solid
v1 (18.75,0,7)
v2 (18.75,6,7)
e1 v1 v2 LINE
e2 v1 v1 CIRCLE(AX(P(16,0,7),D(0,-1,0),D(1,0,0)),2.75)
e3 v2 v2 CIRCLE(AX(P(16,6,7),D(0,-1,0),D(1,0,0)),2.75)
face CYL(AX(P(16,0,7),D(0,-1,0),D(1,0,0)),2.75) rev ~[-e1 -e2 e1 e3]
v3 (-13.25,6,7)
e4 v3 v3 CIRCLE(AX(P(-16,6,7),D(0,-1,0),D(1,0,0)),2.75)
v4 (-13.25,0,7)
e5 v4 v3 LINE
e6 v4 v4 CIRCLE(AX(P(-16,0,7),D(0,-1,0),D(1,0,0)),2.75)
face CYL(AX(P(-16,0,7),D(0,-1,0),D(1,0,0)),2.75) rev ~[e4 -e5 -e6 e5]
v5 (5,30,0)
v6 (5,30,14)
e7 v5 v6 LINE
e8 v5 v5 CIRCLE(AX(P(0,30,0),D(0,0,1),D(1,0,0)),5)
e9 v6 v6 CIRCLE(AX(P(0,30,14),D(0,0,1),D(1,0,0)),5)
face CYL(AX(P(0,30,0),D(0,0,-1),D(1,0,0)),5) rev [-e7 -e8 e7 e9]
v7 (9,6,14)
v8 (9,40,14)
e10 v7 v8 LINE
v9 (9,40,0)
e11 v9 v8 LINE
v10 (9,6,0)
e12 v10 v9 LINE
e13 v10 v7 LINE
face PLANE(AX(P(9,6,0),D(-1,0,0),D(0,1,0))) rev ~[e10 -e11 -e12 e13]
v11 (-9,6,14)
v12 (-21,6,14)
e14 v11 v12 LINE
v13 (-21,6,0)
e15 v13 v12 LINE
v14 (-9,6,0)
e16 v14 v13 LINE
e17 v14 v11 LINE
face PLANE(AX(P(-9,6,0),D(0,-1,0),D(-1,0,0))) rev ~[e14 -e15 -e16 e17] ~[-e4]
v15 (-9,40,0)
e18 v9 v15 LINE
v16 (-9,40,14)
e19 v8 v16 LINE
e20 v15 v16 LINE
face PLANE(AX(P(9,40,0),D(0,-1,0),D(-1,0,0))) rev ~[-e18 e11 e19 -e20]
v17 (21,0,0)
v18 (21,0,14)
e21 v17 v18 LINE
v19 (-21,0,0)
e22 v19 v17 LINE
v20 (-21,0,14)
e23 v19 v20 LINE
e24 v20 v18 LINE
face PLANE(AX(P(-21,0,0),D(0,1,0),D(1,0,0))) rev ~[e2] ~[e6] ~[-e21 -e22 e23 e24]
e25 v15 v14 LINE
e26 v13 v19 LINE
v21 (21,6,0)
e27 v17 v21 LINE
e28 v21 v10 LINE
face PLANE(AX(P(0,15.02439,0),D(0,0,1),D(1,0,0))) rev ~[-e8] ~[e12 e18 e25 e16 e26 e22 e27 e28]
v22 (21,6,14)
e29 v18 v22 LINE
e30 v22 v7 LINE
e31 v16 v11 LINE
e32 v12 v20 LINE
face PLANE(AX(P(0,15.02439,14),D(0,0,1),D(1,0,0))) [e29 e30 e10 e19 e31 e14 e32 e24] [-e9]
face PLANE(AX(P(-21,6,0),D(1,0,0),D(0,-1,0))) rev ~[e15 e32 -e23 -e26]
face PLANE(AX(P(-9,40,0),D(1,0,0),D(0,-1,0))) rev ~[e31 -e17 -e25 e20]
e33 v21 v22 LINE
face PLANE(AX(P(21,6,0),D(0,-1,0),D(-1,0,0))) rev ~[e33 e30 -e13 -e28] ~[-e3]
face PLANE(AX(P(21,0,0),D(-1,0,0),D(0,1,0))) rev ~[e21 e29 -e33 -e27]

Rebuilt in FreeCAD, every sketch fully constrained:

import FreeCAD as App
import Part
import Sketcher


def add_polygon(sketch, points):
    """Adds a closed chain of lines whose ends are joined by coincident constraints."""
    first, n = sketch.GeometryCount, len(points)
    for a, b in zip(points, points[1:] + points[:1]):
        sketch.addGeometry(Part.LineSegment(App.Vector(*a, 0), App.Vector(*b, 0)), False)
    for i in range(n):
        sketch.addConstraint(Sketcher.Constraint("Coincident", first + i, 2, first + (i + 1) % n, 1))

doc = App.newDocument("Part")
params = doc.addObject("Spreadsheet::Sheet", "Params")
for row, (alias, value) in enumerate([
    ("sketch1_diameter", "10 mm"),
    ("sketch1_width", "18 mm"),
    ("sketch1_width2", "12 mm"),
    ("sketch1_height", "34 mm"),
    ("sketch1_height2", "6 mm"),
    ("pad1_length", "14 mm"),
    ("sketch2_diameter", "5.5 mm"),
    ("pocket1_length", "6 mm"),
], start=1):
    params.set(f"A{row}", alias)
    params.set(f"B{row}", "=" + value)
    params.setAlias(f"B{row}", alias)

body = doc.addObject("PartDesign::Body", "Body")

# Sketch on XY plane
sketch1 = body.newObject("Sketcher::SketchObject", "Sketch")
sketch1.AttachmentSupport = (doc.getObject("XY_Plane"), [""])
sketch1.MapMode = "FlatFace"
add_polygon(sketch1, [(9, 40), (-9, 40), (-9, 6), (-21, 6), (-21, 0), (21, 0), (21, 6), (9, 6)])  # lines 0-7
sketch1.addGeometry(Part.Circle(App.Vector(0, 30, 0), App.Vector(0, 0, 1), 5), False)  # 8
sketch1.addConstraint([
    Sketcher.Constraint("Horizontal", 0),
    Sketcher.Constraint("Vertical", 1),
    Sketcher.Constraint("Horizontal", 2),
    Sketcher.Constraint("Vertical", 3),
    Sketcher.Constraint("Horizontal", 4),
    Sketcher.Constraint("Vertical", 5),
    Sketcher.Constraint("Horizontal", 6),
    Sketcher.Constraint("Vertical", 7),
    Sketcher.Constraint("Symmetric", 3, 2, 4, 2, -1, 1),
    Sketcher.Constraint("Symmetric", 1, 2, 6, 2, -2),
    Sketcher.Constraint("PointOnObject", 8, 3, -2),
    Sketcher.Constraint("Diameter", 8, 10.0),
    Sketcher.Constraint("DistanceX", 0, 2, 0, 1, 18.0),
    Sketcher.Constraint("DistanceX", 2, 2, 2, 1, 12.0),
    Sketcher.Constraint("DistanceY", 1, 2, 1, 1, 34.0),
    Sketcher.Constraint("DistanceY", 3, 2, 3, 1, 6.0),
    Sketcher.Constraint("DistanceY", -1, 1, 8, 3, 30.0),
])
sketch1.setExpression("Constraints[19]", "Params.sketch1_diameter")
sketch1.setExpression("Constraints[20]", "Params.sketch1_width")
sketch1.setExpression("Constraints[21]", "Params.sketch1_width2")
sketch1.setExpression("Constraints[22]", "Params.sketch1_height")
sketch1.setExpression("Constraints[23]", "Params.sketch1_height2")
pad1 = body.newObject("PartDesign::Pad", "Pad")
pad1.Profile = sketch1
pad1.setExpression("Length", "Params.pad1_length")

# Sketch on XZ plane
sketch2 = body.newObject("Sketcher::SketchObject", "Sketch001")
sketch2.AttachmentSupport = (doc.getObject("XZ_Plane"), [""])
sketch2.MapMode = "FlatFace"
sketch2.addGeometry([
    Part.Circle(App.Vector(-16, 7, 0), App.Vector(0, 0, 1), 2.75),
    Part.Circle(App.Vector(16, 7, 0), App.Vector(0, 0, 1), 2.75),
], False)
sketch2.addConstraint([
    Sketcher.Constraint("Equal", 0, 1),
    Sketcher.Constraint("Symmetric", 0, 3, 1, 3, -2),
    Sketcher.Constraint("Diameter", 0, 5.5),
    Sketcher.Constraint("DistanceX", 0, 3, -1, 1, 16.0),
    Sketcher.Constraint("DistanceY", -1, 1, 0, 3, 7.0),
])
sketch2.setExpression("Constraints[2]", "Params.sketch2_diameter")
pocket1 = body.newObject("PartDesign::Pocket", "Pocket")
pocket1.Profile = sketch2
pocket1.setExpression("Length", "Params.pocket1_length")

doc.recompute()
